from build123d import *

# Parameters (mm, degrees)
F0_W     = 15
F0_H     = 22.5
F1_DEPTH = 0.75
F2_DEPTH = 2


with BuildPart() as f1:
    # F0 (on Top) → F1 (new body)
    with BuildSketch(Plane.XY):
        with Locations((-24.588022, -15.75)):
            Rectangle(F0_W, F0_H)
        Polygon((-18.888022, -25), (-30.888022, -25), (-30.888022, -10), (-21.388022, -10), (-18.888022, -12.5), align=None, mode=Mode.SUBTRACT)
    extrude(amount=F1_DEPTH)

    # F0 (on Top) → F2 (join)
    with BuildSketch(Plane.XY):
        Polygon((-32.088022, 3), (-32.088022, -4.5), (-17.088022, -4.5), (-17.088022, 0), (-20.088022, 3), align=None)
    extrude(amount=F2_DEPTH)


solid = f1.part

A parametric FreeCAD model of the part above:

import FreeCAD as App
import Part
import Sketcher
Q = App.Units.Quantity

doc = App.newDocument("Part")
params = doc.addObject("Spreadsheet::Sheet", "Params")
for row, (alias, value) in enumerate([
    ("sketch1_width", "15 mm"),
    ("sketch1_width2", "12 mm"),
    ("sketch1_width3", "9.5 mm"),
    ("sketch1_height", "22.5 mm"),
    ("pad1_length", "0.75 mm"),
    ("sketch2_width", "15 mm"),
    ("sketch2_width2", "12 mm"),
    ("sketch2_height", "7.5 mm"),
    ("pad2_length", "2 mm"),
], start=1):
    params.set(f"A{row}", alias)
    params.set(f"B{row}", "=" + value)
    params.setAlias(f"B{row}", alias)

body = doc.addObject("PartDesign::Body", "Body")

# Sketch on XY plane
sketch1 = doc.addObject("Sketcher::SketchObject", "Sketch")
body.addObject(sketch1)
sketch1.AttachmentSupport = (doc.XY_Plane, [""])
sketch1.MapMode = "FlatFace"
sketch1.addGeometry(Part.LineSegment(App.Vector(-32.1, -4.5, 0), App.Vector(-32.1, -27, 0)), False)
sketch1.addGeometry(Part.LineSegment(App.Vector(-32.1, -27, 0), App.Vector(-17.1, -27, 0)), False)
sketch1.addGeometry(Part.LineSegment(App.Vector(-17.1, -27, 0), App.Vector(-17.1, -4.5, 0)), False)
sketch1.addGeometry(Part.LineSegment(App.Vector(-17.1, -4.5, 0), App.Vector(-32.1, -4.5, 0)), False)
sketch1.addGeometry(Part.LineSegment(App.Vector(-18.9, -12.5, 0), App.Vector(-18.9, -25, 0)), False)
sketch1.addGeometry(Part.LineSegment(App.Vector(-18.9, -25, 0), App.Vector(-30.9, -25, 0)), False)
sketch1.addGeometry(Part.LineSegment(App.Vector(-30.9, -25, 0), App.Vector(-30.9, -10, 0)), False)
sketch1.addGeometry(Part.LineSegment(App.Vector(-30.9, -10, 0), App.Vector(-21.4, -10, 0)), False)
sketch1.addGeometry(Part.LineSegment(App.Vector(-21.4, -10, 0), App.Vector(-18.9, -12.5, 0)), False)
sketch1.addConstraint(Sketcher.Constraint("Coincident", 0, 2, 1, 1))
sketch1.addConstraint(Sketcher.Constraint("Coincident", 1, 2, 2, 1))
sketch1.addConstraint(Sketcher.Constraint("Coincident", 2, 2, 3, 1))
sketch1.addConstraint(Sketcher.Constraint("Coincident", 3, 2, 0, 1))
sketch1.addConstraint(Sketcher.Constraint("Coincident", 4, 2, 5, 1))
sketch1.addConstraint(Sketcher.Constraint("Coincident", 5, 2, 6, 1))
sketch1.addConstraint(Sketcher.Constraint("Coincident", 6, 2, 7, 1))
sketch1.addConstraint(Sketcher.Constraint("Coincident", 7, 2, 8, 1))
sketch1.addConstraint(Sketcher.Constraint("Coincident", 8, 2, 4, 1))
sketch1.addConstraint(Sketcher.Constraint("Vertical", 0))
sketch1.addConstraint(Sketcher.Constraint("Horizontal", 1))
sketch1.addConstraint(Sketcher.Constraint("Vertical", 2))
sketch1.addConstraint(Sketcher.Constraint("Horizontal", 3))
sketch1.addConstraint(Sketcher.Constraint("Vertical", 4))
sketch1.addConstraint(Sketcher.Constraint("Horizontal", 5))
sketch1.addConstraint(Sketcher.Constraint("Vertical", 6))
sketch1.addConstraint(Sketcher.Constraint("Horizontal", 7))
sketch1.addConstraint(Sketcher.Constraint("Equal", 3, 6))
sketch1.addConstraint(Sketcher.Constraint("DistanceX", 1, 1, 1, 2, 15.0))
sketch1.addConstraint(Sketcher.Constraint("DistanceX", 5, 2, 5, 1, 12.0))
sketch1.addConstraint(Sketcher.Constraint("Angle", 8, Q("-45 deg")))
sketch1.addConstraint(Sketcher.Constraint("DistanceX", 7, 1, 7, 2, 9.5))
sketch1.addConstraint(Sketcher.Constraint("DistanceY", 0, 2, 0, 1, 22.5))
sketch1.addConstraint(Sketcher.Constraint("DistanceY", 0, 2, -1, 1, 27.0))
sketch1.addConstraint(Sketcher.Constraint("DistanceY", 4, 2, -1, 1, 25.0))
sketch1.addConstraint(Sketcher.Constraint("DistanceX", 4, 2, 1, 2, 1.8))
sketch1.addConstraint(Sketcher.Constraint("DistanceX", 1, 2, -1, 1, 17.088022))
sketch1.setExpression("Constraints[18]", "Params.sketch1_width")
sketch1.setExpression("Constraints[19]", "Params.sketch1_width2")
sketch1.setExpression("Constraints[21]", "Params.sketch1_width3")
sketch1.setExpression("Constraints[22]", "Params.sketch1_height")
pad1 = doc.addObject("PartDesign::Pad", "Pad")
body.addObject(pad1)
pad1.Profile = sketch1
pad1.setExpression("Length", "Params.pad1_length")

# Sketch on XY plane
sketch2 = doc.addObject("Sketcher::SketchObject", "Sketch001")
body.addObject(sketch2)
sketch2.AttachmentSupport = (doc.XY_Plane, [""])
sketch2.MapMode = "FlatFace"
sketch2.addGeometry(Part.LineSegment(App.Vector(-32.1, 3, 0), App.Vector(-32.1, -4.5, 0)), False)
sketch2.addGeometry(Part.LineSegment(App.Vector(-32.1, -4.5, 0), App.Vector(-17.1, -4.5, 0)), False)
sketch2.addGeometry(Part.LineSegment(App.Vector(-17.1, -4.5, 0), App.Vector(-17.1, 0, 0)), False)
sketch2.addGeometry(Part.LineSegment(App.Vector(-17.1, 0, 0), App.Vector(-20.1, 3, 0)), False)
sketch2.addGeometry(Part.LineSegment(App.Vector(-20.1, 3, 0), App.Vector(-32.1, 3, 0)), False)
sketch2.addConstraint(Sketcher.Constraint("Coincident", 0, 2, 1, 1))
sketch2.addConstraint(Sketcher.Constraint("Coincident", 1, 2, 2, 1))
sketch2.addConstraint(Sketcher.Constraint("Coincident", 2, 2, 3, 1))
sketch2.addConstraint(Sketcher.Constraint("Coincident", 3, 2, 4, 1))
sketch2.addConstraint(Sketcher.Constraint("Coincident", 4, 2, 0, 1))
sketch2.addConstraint(Sketcher.Constraint("Vertical", 0))
sketch2.addConstraint(Sketcher.Constraint("Horizontal", 1))
sketch2.addConstraint(Sketcher.Constraint("Vertical", 2))
sketch2.addConstraint(Sketcher.Constraint("Horizontal", 4))
sketch2.addConstraint(Sketcher.Constraint("PointOnObject", 2, 2, -1))
sketch2.addConstraint(Sketcher.Constraint("DistanceX", 1, 1, 1, 2, 15.0))
sketch2.addConstraint(Sketcher.Constraint("DistanceX", 4, 2, 4, 1, 12.0))
sketch2.addConstraint(Sketcher.Constraint("Angle", 3, Q("135 deg")))
sketch2.addConstraint(Sketcher.Constraint("DistanceY", 0, 2, 0, 1, 7.5))
sketch2.addConstraint(Sketcher.Constraint("DistanceX", 1, 2, -1, 1, 17.088022))
sketch2.setExpression("Constraints[10]", "Params.sketch2_width")
sketch2.setExpression("Constraints[11]", "Params.sketch2_width2")
sketch2.setExpression("Constraints[13]", "Params.sketch2_height")
pad2 = doc.addObject("PartDesign::Pad", "Pad001")
body.addObject(pad2)
pad2.Profile = sketch2
pad2.setExpression("Length", "Params.pad2_length")

doc.recompute()
